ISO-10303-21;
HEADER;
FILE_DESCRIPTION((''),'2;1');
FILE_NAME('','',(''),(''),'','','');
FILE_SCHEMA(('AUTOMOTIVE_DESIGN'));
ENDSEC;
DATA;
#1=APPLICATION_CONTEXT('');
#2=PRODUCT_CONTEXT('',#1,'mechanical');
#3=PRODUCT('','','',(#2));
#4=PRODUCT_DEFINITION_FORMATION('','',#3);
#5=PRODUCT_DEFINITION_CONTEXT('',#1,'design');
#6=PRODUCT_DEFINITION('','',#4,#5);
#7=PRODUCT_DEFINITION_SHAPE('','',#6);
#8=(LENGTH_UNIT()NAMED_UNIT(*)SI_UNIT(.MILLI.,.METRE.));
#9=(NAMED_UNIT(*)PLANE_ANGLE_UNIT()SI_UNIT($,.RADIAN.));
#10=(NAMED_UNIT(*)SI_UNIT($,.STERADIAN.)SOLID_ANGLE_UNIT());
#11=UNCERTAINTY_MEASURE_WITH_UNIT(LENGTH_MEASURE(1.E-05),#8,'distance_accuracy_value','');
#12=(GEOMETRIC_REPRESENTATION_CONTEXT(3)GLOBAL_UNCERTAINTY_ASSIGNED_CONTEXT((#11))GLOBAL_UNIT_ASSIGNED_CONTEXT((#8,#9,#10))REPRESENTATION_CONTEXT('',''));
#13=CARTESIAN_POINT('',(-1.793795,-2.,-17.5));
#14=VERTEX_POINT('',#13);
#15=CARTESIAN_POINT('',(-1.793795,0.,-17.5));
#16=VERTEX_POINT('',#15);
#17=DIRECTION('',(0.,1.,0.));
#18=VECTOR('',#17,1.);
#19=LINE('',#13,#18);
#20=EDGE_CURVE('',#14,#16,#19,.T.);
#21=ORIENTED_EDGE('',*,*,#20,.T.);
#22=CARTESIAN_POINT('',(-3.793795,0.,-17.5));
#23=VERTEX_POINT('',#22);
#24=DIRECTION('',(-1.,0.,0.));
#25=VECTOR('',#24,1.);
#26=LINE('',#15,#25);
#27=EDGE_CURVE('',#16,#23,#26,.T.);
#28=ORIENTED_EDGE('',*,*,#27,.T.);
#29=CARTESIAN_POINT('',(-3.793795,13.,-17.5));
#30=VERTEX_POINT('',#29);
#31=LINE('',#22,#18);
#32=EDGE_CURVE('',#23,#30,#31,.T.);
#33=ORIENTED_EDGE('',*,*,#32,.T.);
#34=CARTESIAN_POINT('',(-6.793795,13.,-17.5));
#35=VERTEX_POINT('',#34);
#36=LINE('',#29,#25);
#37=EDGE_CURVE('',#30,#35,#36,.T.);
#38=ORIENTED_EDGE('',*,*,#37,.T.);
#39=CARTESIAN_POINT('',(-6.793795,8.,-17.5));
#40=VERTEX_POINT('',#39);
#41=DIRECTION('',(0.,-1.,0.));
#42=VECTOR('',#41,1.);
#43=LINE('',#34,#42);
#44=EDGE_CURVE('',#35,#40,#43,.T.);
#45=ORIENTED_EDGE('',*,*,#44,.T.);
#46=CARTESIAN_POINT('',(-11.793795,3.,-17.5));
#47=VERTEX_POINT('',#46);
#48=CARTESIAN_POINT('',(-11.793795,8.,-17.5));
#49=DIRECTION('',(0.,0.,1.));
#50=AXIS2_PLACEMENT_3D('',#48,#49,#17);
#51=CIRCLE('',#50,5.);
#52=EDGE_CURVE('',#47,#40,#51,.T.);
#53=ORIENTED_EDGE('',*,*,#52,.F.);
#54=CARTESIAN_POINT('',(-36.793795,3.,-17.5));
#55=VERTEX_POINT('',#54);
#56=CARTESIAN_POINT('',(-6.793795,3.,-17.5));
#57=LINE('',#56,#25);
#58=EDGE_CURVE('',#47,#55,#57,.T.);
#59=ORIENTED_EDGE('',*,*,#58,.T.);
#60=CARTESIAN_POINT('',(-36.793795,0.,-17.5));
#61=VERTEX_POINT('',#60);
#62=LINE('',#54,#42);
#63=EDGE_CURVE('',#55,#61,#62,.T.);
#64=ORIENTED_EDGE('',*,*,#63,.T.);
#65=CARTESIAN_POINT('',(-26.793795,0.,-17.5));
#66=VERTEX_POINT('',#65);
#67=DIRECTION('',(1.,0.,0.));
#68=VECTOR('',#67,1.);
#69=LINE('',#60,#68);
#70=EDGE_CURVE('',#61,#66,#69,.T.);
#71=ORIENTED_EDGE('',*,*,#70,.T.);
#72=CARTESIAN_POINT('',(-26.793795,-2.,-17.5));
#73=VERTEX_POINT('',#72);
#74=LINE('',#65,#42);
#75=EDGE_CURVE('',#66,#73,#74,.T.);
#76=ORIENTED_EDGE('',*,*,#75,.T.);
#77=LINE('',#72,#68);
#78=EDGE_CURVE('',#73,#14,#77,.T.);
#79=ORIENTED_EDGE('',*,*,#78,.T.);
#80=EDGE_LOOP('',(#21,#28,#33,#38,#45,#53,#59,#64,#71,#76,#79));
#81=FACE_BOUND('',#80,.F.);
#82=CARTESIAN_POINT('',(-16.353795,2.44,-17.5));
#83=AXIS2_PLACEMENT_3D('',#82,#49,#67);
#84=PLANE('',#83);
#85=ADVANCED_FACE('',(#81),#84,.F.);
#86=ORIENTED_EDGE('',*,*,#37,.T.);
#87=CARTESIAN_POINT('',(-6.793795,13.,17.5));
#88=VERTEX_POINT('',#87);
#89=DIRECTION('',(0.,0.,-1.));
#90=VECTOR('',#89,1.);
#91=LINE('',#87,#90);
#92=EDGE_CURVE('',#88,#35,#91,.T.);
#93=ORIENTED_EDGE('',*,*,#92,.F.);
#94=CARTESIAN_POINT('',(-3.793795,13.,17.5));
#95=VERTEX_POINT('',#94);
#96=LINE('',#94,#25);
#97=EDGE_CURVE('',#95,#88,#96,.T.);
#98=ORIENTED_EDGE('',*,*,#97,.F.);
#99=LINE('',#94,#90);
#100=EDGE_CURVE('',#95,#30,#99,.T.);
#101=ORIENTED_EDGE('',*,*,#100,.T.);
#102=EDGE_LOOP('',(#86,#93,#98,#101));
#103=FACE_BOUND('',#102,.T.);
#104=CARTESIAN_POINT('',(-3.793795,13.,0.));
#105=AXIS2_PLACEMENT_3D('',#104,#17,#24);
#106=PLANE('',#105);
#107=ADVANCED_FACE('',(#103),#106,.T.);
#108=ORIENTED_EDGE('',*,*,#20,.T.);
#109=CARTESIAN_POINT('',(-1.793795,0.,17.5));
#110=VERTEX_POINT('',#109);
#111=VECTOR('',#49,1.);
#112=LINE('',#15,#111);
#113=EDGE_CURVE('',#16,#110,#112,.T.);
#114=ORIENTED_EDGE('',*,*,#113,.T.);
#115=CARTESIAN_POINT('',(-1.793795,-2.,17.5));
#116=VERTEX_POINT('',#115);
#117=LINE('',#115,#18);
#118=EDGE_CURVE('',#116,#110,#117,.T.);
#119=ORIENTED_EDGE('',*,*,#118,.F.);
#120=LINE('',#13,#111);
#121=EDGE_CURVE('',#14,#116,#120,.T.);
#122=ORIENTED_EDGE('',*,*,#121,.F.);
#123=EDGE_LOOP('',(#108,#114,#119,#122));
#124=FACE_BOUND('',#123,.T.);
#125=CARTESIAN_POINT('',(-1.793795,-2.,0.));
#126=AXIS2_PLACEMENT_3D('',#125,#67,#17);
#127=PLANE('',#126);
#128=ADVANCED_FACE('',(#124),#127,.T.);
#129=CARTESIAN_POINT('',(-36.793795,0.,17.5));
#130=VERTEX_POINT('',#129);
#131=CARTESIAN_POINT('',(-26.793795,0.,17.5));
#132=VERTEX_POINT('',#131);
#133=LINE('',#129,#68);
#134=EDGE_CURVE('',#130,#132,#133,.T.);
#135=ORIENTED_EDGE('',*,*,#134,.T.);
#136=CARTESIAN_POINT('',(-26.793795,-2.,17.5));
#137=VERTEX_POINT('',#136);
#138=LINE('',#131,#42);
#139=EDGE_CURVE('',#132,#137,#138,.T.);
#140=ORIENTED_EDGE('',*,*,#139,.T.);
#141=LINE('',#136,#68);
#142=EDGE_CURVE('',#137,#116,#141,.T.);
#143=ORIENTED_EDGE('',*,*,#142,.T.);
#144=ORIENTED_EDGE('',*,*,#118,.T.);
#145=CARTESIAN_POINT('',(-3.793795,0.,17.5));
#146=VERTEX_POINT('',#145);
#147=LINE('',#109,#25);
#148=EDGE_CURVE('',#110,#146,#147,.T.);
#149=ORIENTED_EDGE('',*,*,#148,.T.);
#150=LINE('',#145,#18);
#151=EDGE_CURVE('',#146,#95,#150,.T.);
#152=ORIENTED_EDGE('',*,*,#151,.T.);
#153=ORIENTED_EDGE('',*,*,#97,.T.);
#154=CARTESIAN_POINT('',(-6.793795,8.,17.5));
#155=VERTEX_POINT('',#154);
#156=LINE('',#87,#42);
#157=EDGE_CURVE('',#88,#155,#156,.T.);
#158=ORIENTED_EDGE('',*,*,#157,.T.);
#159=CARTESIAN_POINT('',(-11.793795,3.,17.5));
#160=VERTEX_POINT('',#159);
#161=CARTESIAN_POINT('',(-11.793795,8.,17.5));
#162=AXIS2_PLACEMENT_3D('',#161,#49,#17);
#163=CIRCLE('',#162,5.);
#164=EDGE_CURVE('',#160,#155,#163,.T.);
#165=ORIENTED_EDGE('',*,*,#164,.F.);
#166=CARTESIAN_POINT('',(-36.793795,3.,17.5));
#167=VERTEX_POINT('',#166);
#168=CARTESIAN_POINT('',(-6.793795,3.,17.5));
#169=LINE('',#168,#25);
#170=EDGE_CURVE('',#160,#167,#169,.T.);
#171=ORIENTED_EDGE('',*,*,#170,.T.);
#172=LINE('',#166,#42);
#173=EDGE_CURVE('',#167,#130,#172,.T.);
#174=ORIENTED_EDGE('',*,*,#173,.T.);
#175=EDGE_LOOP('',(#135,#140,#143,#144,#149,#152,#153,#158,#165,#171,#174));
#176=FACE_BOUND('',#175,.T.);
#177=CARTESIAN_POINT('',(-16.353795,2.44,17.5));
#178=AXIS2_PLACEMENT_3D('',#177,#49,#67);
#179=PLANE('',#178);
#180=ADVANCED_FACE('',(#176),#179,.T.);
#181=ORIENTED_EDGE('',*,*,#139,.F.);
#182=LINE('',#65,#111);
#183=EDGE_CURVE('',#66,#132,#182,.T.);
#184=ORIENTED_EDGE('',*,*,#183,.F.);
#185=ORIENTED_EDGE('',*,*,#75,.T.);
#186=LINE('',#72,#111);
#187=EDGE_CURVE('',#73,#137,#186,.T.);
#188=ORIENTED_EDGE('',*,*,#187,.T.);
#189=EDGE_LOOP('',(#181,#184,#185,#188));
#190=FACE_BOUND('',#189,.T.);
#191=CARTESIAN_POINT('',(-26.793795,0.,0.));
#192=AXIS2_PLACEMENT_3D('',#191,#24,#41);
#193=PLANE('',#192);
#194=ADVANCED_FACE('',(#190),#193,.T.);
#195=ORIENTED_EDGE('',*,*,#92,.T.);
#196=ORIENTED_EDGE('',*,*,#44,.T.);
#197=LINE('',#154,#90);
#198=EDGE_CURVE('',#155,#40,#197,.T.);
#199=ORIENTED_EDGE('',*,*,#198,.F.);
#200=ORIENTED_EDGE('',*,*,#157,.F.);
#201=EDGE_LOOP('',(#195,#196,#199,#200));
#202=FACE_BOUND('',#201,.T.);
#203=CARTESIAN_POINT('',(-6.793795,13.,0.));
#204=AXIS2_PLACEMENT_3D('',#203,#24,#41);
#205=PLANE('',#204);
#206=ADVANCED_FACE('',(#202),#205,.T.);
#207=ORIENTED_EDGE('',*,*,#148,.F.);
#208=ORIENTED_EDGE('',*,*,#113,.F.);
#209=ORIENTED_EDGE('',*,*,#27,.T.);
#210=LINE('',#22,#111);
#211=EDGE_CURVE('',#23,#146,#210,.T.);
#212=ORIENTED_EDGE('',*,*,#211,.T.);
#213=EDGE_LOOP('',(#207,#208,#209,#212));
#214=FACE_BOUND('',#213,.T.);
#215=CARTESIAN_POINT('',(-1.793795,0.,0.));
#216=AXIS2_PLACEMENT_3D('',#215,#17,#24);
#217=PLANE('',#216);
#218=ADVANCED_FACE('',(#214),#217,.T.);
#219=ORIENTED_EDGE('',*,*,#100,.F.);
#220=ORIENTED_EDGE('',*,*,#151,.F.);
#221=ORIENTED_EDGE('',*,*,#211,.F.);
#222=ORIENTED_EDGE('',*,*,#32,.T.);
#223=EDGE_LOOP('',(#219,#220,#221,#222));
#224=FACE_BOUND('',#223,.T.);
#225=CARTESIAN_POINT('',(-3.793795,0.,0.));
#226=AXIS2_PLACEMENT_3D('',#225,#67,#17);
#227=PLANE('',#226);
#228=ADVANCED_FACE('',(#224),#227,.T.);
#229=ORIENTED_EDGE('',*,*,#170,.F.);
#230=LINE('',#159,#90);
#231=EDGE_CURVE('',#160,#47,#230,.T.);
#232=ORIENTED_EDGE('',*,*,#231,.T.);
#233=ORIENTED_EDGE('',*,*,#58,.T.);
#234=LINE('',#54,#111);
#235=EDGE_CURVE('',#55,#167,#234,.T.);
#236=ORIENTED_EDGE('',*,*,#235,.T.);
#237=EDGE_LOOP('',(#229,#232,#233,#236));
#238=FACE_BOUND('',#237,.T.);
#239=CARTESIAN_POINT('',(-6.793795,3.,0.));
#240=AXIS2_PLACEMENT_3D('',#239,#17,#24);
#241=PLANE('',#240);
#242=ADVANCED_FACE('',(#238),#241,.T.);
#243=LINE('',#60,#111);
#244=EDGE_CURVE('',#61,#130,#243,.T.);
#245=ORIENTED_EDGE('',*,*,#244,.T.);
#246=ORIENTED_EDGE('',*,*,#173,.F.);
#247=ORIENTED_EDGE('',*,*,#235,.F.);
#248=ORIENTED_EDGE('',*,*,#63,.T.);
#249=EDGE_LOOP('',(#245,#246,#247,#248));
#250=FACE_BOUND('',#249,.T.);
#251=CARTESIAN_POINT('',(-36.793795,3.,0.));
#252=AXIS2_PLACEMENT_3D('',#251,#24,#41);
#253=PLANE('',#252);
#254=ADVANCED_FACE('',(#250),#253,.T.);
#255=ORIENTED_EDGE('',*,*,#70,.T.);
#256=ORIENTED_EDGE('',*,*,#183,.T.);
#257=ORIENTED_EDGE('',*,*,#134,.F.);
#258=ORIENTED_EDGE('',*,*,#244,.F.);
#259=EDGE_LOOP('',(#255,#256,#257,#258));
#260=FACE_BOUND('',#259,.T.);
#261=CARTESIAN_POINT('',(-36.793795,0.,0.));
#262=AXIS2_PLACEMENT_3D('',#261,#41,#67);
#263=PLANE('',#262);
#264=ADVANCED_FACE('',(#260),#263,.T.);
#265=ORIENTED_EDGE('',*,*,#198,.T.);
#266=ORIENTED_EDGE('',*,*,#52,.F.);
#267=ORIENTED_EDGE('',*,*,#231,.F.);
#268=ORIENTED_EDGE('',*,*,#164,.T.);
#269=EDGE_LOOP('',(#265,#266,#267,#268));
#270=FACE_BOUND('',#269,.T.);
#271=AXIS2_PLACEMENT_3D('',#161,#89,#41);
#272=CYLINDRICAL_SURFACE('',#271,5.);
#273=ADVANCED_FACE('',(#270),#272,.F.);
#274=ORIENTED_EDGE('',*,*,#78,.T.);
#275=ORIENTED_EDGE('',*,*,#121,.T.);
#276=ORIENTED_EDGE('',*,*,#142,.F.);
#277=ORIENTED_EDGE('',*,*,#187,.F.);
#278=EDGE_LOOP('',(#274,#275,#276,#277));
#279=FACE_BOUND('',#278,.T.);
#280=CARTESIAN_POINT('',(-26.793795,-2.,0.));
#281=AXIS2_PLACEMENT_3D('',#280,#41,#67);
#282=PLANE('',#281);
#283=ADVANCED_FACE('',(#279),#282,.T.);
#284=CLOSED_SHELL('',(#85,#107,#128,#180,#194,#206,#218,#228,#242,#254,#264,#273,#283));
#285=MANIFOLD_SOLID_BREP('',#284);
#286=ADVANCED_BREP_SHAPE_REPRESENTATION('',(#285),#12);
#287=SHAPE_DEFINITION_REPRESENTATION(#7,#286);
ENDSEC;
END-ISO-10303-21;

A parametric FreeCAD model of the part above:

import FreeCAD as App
import Part
import Sketcher
from FreeCAD import Vector


def edges_at(feature, points):
    """Names of the edges that pass closest to the given points."""
    edges = feature.Shape.Edges
    near = lambda p: min(range(len(edges)), key=lambda i: edges[i].distToShape(Part.Vertex(*p))[0])
    return sorted({f"Edge{near(p) + 1}" for p in points})

doc = App.newDocument("Part")
body = doc.addObject("PartDesign::Body", "Body")

# Sketch on XY plane
sketch1 = doc.addObject("Sketcher::SketchObject", "Sketch")
body.addObject(sketch1)
sketch1.AttachmentSupport = (doc.XY_Plane, [""])
sketch1.MapMode = "FlatFace"
sketch1.addGeometry([
    Part.LineSegment(Vector(-6.793795, 3, 0), Vector(-36.793795, 3, 0)),  # 0
    Part.LineSegment(Vector(-36.793795, 3, 0), Vector(-36.793795, 0, 0)),  # 1
    Part.LineSegment(Vector(-36.793795, 0, 0), Vector(-26.793795, 0, 0)),  # 2
    Part.LineSegment(Vector(-26.793795, 0, 0), Vector(-26.793795, -2, 0)),  # 3
    Part.LineSegment(Vector(-26.793795, -2, 0), Vector(-1.793795, -2, 0)),  # 4
    Part.LineSegment(Vector(-1.793795, -2, 0), Vector(-1.793795, 0, 0)),  # 5
    Part.LineSegment(Vector(-1.793795, 0, 0), Vector(-3.793795, 0, 0)),  # 6
    Part.LineSegment(Vector(-3.793795, 0, 0), Vector(-3.793795, 13, 0)),  # 7
    Part.LineSegment(Vector(-3.793795, 13, 0), Vector(-6.793795, 13, 0)),  # 8
    Part.LineSegment(Vector(-6.793795, 13, 0), Vector(-6.793795, 3, 0)),  # 9
], False)
sketch1.addConstraint([
    Sketcher.Constraint("Coincident", 0, 2, 1, 1),
    Sketcher.Constraint("Coincident", 1, 2, 2, 1),
    Sketcher.Constraint("Coincident", 2, 2, 3, 1),
    Sketcher.Constraint("Coincident", 3, 2, 4, 1),
    Sketcher.Constraint("Coincident", 4, 2, 5, 1),
    Sketcher.Constraint("Coincident", 5, 2, 6, 1),
    Sketcher.Constraint("Coincident", 6, 2, 7, 1),
    Sketcher.Constraint("Coincident", 7, 2, 8, 1),
    Sketcher.Constraint("Coincident", 8, 2, 9, 1),
    Sketcher.Constraint("Coincident", 9, 2, 0, 1),
    Sketcher.Constraint("Horizontal", 0),
    Sketcher.Constraint("Vertical", 1),
    Sketcher.Constraint("Horizontal", 2),
    Sketcher.Constraint("Vertical", 3),
    Sketcher.Constraint("Horizontal", 4),
    Sketcher.Constraint("Vertical", 5),
    Sketcher.Constraint("Horizontal", 6),
    Sketcher.Constraint("Vertical", 7),
    Sketcher.Constraint("Horizontal", 8),
    Sketcher.Constraint("Vertical", 9),
    Sketcher.Constraint("PointOnObject", 1, 2, -1),
    Sketcher.Constraint("PointOnObject", 5, 2, -1),
    Sketcher.Constraint("Equal", 8, 1),
    Sketcher.Constraint("Equal", 6, 3),
    Sketcher.Constraint("Equal", 2, 9),
    Sketcher.Constraint("DistanceX", 0, 2, 0, 1, 30.0),
    Sketcher.Constraint("DistanceX", 2, 1, 2, 2, 10.0),
    Sketcher.Constraint("DistanceX", 4, 1, 4, 2, 25.0),
    Sketcher.Constraint("DistanceX", 6, 2, 6, 1, 2.0),
    Sketcher.Constraint("DistanceX", 0, 2, -1, 1, 36.793795),
])
pad1 = doc.addObject("PartDesign::Pad", "Pad")
body.addObject(pad1)
pad1.Profile = sketch1
pad1.Length = 35
pad1.Midplane = True
doc.recompute()

fillet = doc.addObject("PartDesign::Fillet", "Fillet")
body.addObject(fillet)
fillet.Base = (pad1, edges_at(pad1, [(-6.794, 3, 0)]))
fillet.Radius = 5

doc.recompute()
